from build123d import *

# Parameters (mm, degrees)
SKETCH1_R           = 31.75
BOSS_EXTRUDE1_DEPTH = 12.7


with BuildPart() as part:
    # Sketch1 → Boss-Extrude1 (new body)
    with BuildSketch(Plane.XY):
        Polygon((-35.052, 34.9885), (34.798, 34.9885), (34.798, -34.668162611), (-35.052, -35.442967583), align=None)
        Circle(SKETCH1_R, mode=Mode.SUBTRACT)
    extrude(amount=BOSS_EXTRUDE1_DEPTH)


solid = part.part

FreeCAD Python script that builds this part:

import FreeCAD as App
import Part
import Sketcher
Q = App.Units.Quantity

doc = App.newDocument("Part")
body = doc.addObject("PartDesign::Body", "Body")

sketch1 = body.newObject("Sketcher::SketchObject", "Sketch")
sketch1.AttachmentSupport = (doc.getObject("XY_Plane"), [""])
sketch1.MapMode = "FlatFace"
sketch1.addGeometry([
    Part.LineSegment(App.Vector(35, 35, 0), App.Vector(-35, 35, 0)),
    Part.LineSegment(App.Vector(-35, 35, 0), App.Vector(-35, -35, 0)),
    Part.LineSegment(App.Vector(-35, -35, 0), App.Vector(35, -35, 0)),
    Part.LineSegment(App.Vector(35, -35, 0), App.Vector(35, 35, 0)),
    Part.Circle(App.Vector(0, 0, 0), App.Vector(0, 0, 1), 32),
], False)
sketch1.addConstraint([
    Sketcher.Constraint("Coincident", 0, 2, 1, 1),
    Sketcher.Constraint("Coincident", 1, 2, 2, 1),
    Sketcher.Constraint("Coincident", 2, 2, 3, 1),
    Sketcher.Constraint("Coincident", 3, 2, 0, 1),
    Sketcher.Constraint("Horizontal", 0),
    Sketcher.Constraint("Vertical", 1),
    Sketcher.Constraint("Vertical", 3),
    Sketcher.Constraint("Coincident", 4, 3, -1, 1),
    Sketcher.Constraint("Diameter", 4, Q("2.5 in")),
    Sketcher.Constraint("DistanceX", 0, 2, 0, 1, Q("2.75 in")),
    Sketcher.Constraint("DistanceX", 0, 2, -1, 1, Q("1.38 in")),
    Sketcher.Constraint("DistanceY", -1, 1, 0, 2, Q("1.3775 in")),
    Sketcher.Constraint("DistanceY", 1, 2, 1, 1, Q("70.431468 mm")),
    Sketcher.Constraint("DistanceY", 3, 1, 3, 2, Q("69.656663 mm")),
])
pad1 = body.newObject("PartDesign::Pad", "Pad")
pad1.Profile = sketch1
pad1.Length = Q("0.5 in")

doc.recompute()
